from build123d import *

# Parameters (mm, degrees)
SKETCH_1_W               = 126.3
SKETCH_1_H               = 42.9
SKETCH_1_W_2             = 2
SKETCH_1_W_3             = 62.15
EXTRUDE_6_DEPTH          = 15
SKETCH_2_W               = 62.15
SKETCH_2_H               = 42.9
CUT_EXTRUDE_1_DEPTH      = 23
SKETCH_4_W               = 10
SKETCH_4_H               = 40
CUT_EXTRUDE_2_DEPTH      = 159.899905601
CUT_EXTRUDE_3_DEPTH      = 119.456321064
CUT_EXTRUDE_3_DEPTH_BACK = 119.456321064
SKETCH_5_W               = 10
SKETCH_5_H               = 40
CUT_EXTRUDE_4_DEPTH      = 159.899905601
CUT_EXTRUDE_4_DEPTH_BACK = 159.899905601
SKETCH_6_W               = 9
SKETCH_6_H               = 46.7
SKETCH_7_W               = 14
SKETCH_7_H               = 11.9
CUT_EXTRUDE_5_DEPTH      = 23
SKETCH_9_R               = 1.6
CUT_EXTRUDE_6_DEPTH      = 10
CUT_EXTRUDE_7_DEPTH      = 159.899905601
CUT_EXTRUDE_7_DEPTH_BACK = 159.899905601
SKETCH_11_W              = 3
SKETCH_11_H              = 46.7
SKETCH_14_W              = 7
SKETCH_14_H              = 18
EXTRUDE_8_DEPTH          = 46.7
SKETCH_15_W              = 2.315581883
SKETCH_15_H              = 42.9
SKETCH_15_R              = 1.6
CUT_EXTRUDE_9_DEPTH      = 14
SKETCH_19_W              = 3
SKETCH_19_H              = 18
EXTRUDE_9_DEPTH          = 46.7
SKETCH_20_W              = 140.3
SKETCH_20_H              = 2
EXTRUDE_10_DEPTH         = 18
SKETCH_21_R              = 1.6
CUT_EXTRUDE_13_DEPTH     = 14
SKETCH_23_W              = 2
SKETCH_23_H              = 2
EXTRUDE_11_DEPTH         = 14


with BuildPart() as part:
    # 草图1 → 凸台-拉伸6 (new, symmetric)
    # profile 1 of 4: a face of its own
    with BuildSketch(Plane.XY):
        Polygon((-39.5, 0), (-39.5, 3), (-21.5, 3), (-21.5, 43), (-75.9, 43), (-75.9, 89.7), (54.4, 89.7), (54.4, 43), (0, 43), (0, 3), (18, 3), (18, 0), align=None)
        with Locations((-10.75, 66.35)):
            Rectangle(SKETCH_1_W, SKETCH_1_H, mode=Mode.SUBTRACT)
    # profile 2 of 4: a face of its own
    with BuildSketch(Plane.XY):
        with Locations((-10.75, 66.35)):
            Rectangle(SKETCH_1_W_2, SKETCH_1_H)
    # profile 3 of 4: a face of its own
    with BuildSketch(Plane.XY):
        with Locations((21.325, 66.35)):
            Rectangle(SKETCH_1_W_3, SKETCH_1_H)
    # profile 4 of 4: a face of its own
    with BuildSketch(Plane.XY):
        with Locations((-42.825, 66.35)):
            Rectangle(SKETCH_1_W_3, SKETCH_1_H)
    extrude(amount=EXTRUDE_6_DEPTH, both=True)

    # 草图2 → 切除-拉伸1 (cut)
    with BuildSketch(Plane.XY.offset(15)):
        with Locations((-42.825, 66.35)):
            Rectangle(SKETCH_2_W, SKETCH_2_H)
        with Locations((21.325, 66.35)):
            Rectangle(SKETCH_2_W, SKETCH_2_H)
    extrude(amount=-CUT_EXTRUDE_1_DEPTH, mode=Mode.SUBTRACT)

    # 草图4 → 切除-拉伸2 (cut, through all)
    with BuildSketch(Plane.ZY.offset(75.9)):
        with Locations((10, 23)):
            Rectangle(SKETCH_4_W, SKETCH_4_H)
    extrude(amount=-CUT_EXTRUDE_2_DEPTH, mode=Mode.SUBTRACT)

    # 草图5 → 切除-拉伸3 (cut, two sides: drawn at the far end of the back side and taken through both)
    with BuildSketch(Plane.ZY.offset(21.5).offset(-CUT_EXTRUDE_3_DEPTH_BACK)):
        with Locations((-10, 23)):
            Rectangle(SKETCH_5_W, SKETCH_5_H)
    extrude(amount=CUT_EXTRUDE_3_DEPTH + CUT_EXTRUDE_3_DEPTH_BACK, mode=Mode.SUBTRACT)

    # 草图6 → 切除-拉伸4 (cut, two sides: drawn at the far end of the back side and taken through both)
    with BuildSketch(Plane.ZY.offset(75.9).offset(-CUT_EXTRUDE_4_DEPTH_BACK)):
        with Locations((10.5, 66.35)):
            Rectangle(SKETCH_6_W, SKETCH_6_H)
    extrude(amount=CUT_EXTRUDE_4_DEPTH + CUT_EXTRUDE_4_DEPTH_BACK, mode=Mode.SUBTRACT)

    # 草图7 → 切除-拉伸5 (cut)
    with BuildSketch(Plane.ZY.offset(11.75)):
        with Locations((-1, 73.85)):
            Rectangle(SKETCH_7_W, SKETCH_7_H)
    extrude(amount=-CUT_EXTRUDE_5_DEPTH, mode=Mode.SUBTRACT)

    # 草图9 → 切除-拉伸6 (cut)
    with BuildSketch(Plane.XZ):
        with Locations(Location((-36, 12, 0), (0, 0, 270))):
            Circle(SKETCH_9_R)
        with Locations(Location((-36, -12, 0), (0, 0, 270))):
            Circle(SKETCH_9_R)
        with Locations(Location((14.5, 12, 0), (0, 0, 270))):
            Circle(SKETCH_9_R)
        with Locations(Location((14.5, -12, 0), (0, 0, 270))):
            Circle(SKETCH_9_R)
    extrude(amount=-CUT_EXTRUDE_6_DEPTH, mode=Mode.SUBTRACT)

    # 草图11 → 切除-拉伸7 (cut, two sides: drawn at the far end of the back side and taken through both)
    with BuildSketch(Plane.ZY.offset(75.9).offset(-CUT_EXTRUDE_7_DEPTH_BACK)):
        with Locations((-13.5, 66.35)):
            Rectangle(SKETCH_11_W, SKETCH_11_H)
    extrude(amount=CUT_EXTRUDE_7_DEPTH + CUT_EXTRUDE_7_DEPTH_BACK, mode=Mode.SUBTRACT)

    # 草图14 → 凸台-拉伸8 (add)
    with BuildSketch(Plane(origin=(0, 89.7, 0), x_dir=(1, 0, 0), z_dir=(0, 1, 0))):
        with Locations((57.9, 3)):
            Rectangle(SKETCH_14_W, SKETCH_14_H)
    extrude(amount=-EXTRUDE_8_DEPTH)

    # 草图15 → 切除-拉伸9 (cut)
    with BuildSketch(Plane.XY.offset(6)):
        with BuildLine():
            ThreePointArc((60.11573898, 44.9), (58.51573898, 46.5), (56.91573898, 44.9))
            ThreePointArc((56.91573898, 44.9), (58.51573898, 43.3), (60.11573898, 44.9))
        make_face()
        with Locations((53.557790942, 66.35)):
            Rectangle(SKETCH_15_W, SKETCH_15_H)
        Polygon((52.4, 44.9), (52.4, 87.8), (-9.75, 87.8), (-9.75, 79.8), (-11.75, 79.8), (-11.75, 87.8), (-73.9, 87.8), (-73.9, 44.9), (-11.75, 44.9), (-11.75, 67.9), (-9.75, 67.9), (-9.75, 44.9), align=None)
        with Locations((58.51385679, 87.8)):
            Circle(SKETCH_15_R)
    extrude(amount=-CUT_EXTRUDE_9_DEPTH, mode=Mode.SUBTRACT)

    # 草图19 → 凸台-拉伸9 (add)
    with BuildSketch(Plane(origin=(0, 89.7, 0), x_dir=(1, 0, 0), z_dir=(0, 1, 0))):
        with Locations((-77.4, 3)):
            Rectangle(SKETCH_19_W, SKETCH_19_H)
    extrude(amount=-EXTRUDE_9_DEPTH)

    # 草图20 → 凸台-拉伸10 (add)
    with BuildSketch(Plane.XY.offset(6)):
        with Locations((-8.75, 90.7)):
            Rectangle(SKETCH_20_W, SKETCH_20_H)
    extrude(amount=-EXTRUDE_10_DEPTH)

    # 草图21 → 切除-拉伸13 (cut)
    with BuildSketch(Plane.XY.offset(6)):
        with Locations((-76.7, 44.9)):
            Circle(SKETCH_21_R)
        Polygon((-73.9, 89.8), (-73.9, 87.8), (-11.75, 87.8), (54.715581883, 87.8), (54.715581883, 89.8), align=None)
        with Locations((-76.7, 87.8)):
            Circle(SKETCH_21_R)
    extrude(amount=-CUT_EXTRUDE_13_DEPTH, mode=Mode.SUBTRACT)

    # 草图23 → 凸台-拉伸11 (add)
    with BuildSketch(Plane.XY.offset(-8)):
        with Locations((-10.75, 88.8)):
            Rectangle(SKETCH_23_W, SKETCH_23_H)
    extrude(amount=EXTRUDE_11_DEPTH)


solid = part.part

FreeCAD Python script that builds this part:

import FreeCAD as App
import Part
import Sketcher

V = App.Vector


def add_polygon(sketch, points):
    """Adds a closed chain of lines whose ends are joined by coincident constraints."""
    first, n = sketch.GeometryCount, len(points)
    for a, b in zip(points, points[1:] + points[:1]):
        sketch.addGeometry(Part.LineSegment(App.Vector(*a, 0), App.Vector(*b, 0)), False)
    for i in range(n):
        sketch.addConstraint(Sketcher.Constraint("Coincident", first + i, 2, first + (i + 1) % n, 1))

doc = App.newDocument("Part")
params = doc.addObject("Spreadsheet::Sheet", "Params")
for row, (alias, value) in enumerate([
    ("sketch1_width", "18 mm"),
    ("sketch1_height", "3 mm"),
    ("sketch1_height2", "40 mm"),
    ("sketch1_width2", "57.5 mm"),
    ("sketch1_width3", "54.4 mm"),
    ("pad1_length", "30 mm"),
    ("sketch2_height", "42.9 mm"),
    ("sketch2_width", "62.15 mm"),
    ("pocket1_length", "23 mm"),
    ("sketch3_width", "40 mm"),
    ("sketch3_height", "10 mm"),
    ("sketch4_width", "40 mm"),
    ("sketch4_height", "10 mm"),
    ("sketch5_height", "9 mm"),
    ("sketch5_width", "46.7 mm"),
    ("sketch6_height", "14 mm"),
    ("sketch6_width", "11.9 mm"),
    ("pocket5_length", "23 mm"),
    ("sketch7_diameter", "3.2 mm"),
    ("pocket6_length", "10 mm"),
    ("sketch8_height", "3 mm"),
    ("sketch8_width", "46.7 mm"),
    ("sketch9_width", "7 mm"),
    ("sketch9_height", "18 mm"),
    ("pad2_length", "46.7 mm"),
    ("sketch10_diameter", "3.2 mm"),
    ("sketch10_width", "2 mm"),
    ("sketch10_height", "8 mm"),
    ("sketch10_height2", "23 mm"),
    ("sketch10_height3", "42.9 mm"),
    ("pocket8_length", "14 mm"),
    ("sketch11_width", "3 mm"),
    ("sketch11_height", "18 mm"),
    ("pad3_length", "46.7 mm"),
    ("sketch12_height", "2 mm"),
    ("sketch12_width", "140.3 mm"),
    ("pad4_length", "18 mm"),
    ("sketch13_diameter", "3.2 mm"),
    ("sketch13_height", "2 mm"),
    ("pocket9_length", "14 mm"),
    ("sketch14_width", "2 mm"),
    ("pad5_length", "14 mm"),
], start=1):
    params.set(f"A{row}", alias)
    params.set(f"B{row}", "=" + value)
    params.setAlias(f"B{row}", alias)

body = doc.addObject("PartDesign::Body", "Body")

# Sketch on XY plane
sketch1 = body.newObject("Sketcher::SketchObject", "Sketch")
sketch1.AttachmentSupport = (doc.getObject("XY_Plane"), [""])
sketch1.MapMode = "FlatFace"
add_polygon(sketch1, [(-39.5, 3), (-39.5, 0), (18, 0), (18, 3), (0, 3), (0, 43), (54.4, 43), (54.4, 89.7), (-75.9, 89.7), (-75.9, 43), (-21.5, 43), (-21.5, 3)])  # lines 0-11
sketch1.addConstraint(Sketcher.Constraint("Vertical", 0))
sketch1.addConstraint(Sketcher.Constraint("Horizontal", 1))
sketch1.addConstraint(Sketcher.Constraint("Vertical", 2))
sketch1.addConstraint(Sketcher.Constraint("Horizontal", 3))
sketch1.addConstraint(Sketcher.Constraint("Vertical", 4))
sketch1.addConstraint(Sketcher.Constraint("Horizontal", 5))
sketch1.addConstraint(Sketcher.Constraint("Vertical", 6))
sketch1.addConstraint(Sketcher.Constraint("Horizontal", 7))
sketch1.addConstraint(Sketcher.Constraint("Vertical", 8))
sketch1.addConstraint(Sketcher.Constraint("Horizontal", 9))
sketch1.addConstraint(Sketcher.Constraint("Vertical", 10))
sketch1.addConstraint(Sketcher.Constraint("Horizontal", 11))
sketch1.addConstraint(Sketcher.Constraint("PointOnObject", 0, 2, -1))
sketch1.addConstraint(Sketcher.Constraint("PointOnObject", 3, 2, -2))
sketch1.addConstraint(Sketcher.Constraint("Horizontal", 5, 2, 8, 2))
sketch1.addConstraint(Sketcher.Constraint("Horizontal", 3, 2, 10, 2))
sketch1.addConstraint(Sketcher.Constraint("Equal", 5, 9))
sketch1.addConstraint(Sketcher.Constraint("Equal", 3, 11))
sketch1.addConstraint(Sketcher.Constraint("DistanceX", 3, 2, 3, 1, 18.0))
sketch1.addConstraint(Sketcher.Constraint("DistanceY", 0, 2, 0, 1, 3.0))
sketch1.addConstraint(Sketcher.Constraint("DistanceY", 4, 1, 4, 2, 40.0))
sketch1.addConstraint(Sketcher.Constraint("DistanceX", 1, 1, 1, 2, 57.5))
sketch1.addConstraint(Sketcher.Constraint("DistanceX", 5, 1, 5, 2, 54.4))
sketch1.addConstraint(Sketcher.Constraint("DistanceY", 6, 1, 6, 2, 46.7))
sketch1.setExpression("Constraints[30]", "Params.sketch1_width")
sketch1.setExpression("Constraints[31]", "Params.sketch1_height")
sketch1.setExpression("Constraints[32]", "Params.sketch1_height2")
sketch1.setExpression("Constraints[33]", "Params.sketch1_width2")
sketch1.setExpression("Constraints[34]", "Params.sketch1_width3")
pad1 = body.newObject("PartDesign::Pad", "Pad")
pad1.Profile = sketch1
pad1.setExpression("Length", "Params.pad1_length")
pad1.Midplane = True

# Sketch on XY plane
sketch2 = body.newObject("Sketcher::SketchObject", "Sketch001")
sketch2.AttachmentSupport = (doc.getObject("XY_Plane"), [""])
sketch2.MapMode = "FlatFace"
sketch2.AttachmentOffset = App.Placement(V(0, 0, 15), App.Rotation())
add_polygon(sketch2, [(-74, 88), (-74, 45), (-12, 45), (-12, 88)])  # lines 0-3
add_polygon(sketch2, [(-10, 88), (-10, 45), (52, 45), (52, 88)])  # lines 4-7
sketch2.addConstraint(Sketcher.Constraint("Vertical", 0))
sketch2.addConstraint(Sketcher.Constraint("Horizontal", 1))
sketch2.addConstraint(Sketcher.Constraint("Vertical", 2))
sketch2.addConstraint(Sketcher.Constraint("Horizontal", 3))
sketch2.addConstraint(Sketcher.Constraint("Vertical", 4))
sketch2.addConstraint(Sketcher.Constraint("Horizontal", 5))
sketch2.addConstraint(Sketcher.Constraint("Vertical", 6))
sketch2.addConstraint(Sketcher.Constraint("Horizontal", 7))
sketch2.addConstraint(Sketcher.Constraint("Horizontal", 1, 2, 4, 2))
sketch2.addConstraint(Sketcher.Constraint("Horizontal", 3, 2, 6, 2))
sketch2.addConstraint(Sketcher.Constraint("Equal", 3, 5))
sketch2.addConstraint(Sketcher.Constraint("DistanceY", 0, 2, 0, 1, 42.9))
sketch2.addConstraint(Sketcher.Constraint("DistanceX", 1, 2, 4, 2, 2.0))
sketch2.addConstraint(Sketcher.Constraint("DistanceX", 1, 1, 1, 2, 62.15))
sketch2.addConstraint(Sketcher.Constraint("DistanceX", 0, 2, -1, 1, 73.9))
sketch2.addConstraint(Sketcher.Constraint("DistanceY", -1, 1, 0, 2, 44.9))
sketch2.setExpression("Constraints[19]", "Params.sketch2_height")
sketch2.setExpression("Constraints[21]", "Params.sketch2_width")
pocket1 = body.newObject("PartDesign::Pocket", "Pocket")
pocket1.Profile = sketch2
pocket1.setExpression("Length", "Params.pocket1_length")

# Sketch on YZ plane
sketch3 = body.newObject("Sketcher::SketchObject", "Sketch002")
sketch3.AttachmentSupport = (doc.getObject("YZ_Plane"), [""])
sketch3.MapMode = "FlatFace"
sketch3.AttachmentOffset = App.Placement(V(0, 0, -75.9), App.Rotation())
add_polygon(sketch3, [(43, 5), (3, 5), (3, 15), (43, 15)])  # lines 0-3
sketch3.addConstraint(Sketcher.Constraint("Horizontal", 0))
sketch3.addConstraint(Sketcher.Constraint("Vertical", 1))
sketch3.addConstraint(Sketcher.Constraint("Horizontal", 2))
sketch3.addConstraint(Sketcher.Constraint("Vertical", 3))
sketch3.addConstraint(Sketcher.Constraint("DistanceX", 0, 2, 0, 1, 40.0))
sketch3.addConstraint(Sketcher.Constraint("DistanceY", 1, 1, 1, 2, 10.0))
sketch3.addConstraint(Sketcher.Constraint("DistanceX", -1, 1, 0, 2, 3.0))
sketch3.addConstraint(Sketcher.Constraint("DistanceY", -1, 1, 0, 2, 5.0))
sketch3.setExpression("Constraints[8]", "Params.sketch3_width")
sketch3.setExpression("Constraints[9]", "Params.sketch3_height")
pocket2 = body.newObject("PartDesign::Pocket", "Pocket001")
pocket2.Profile = sketch3
pocket2.Type = "ThroughAll"
pocket2.Reversed = True

# Sketch on YZ plane
sketch4 = body.newObject("Sketcher::SketchObject", "Sketch003")
sketch4.AttachmentSupport = (doc.getObject("YZ_Plane"), [""])
sketch4.MapMode = "FlatFace"
sketch4.AttachmentOffset = App.Placement(V(0, 0, -21.5), App.Rotation())
add_polygon(sketch4, [(43, -15), (3, -15), (3, -5), (43, -5)])  # lines 0-3
sketch4.addConstraint(Sketcher.Constraint("Horizontal", 0))
sketch4.addConstraint(Sketcher.Constraint("Vertical", 1))
sketch4.addConstraint(Sketcher.Constraint("Horizontal", 2))
sketch4.addConstraint(Sketcher.Constraint("Vertical", 3))
sketch4.addConstraint(Sketcher.Constraint("DistanceX", 0, 2, 0, 1, 40.0))
sketch4.addConstraint(Sketcher.Constraint("DistanceY", 1, 1, 1, 2, 10.0))
sketch4.addConstraint(Sketcher.Constraint("DistanceX", -1, 1, 0, 2, 3.0))
sketch4.addConstraint(Sketcher.Constraint("DistanceY", 0, 2, -1, 1, 15.0))
sketch4.setExpression("Constraints[8]", "Params.sketch4_width")
sketch4.setExpression("Constraints[9]", "Params.sketch4_height")
pocket3 = body.newObject("PartDesign::Pocket", "Pocket002")
pocket3.Profile = sketch4
pocket3.Type = "ThroughAll"
pocket3.Midplane = True

# Sketch on YZ plane
sketch5 = body.newObject("Sketcher::SketchObject", "Sketch004")
sketch5.AttachmentSupport = (doc.getObject("YZ_Plane"), [""])
sketch5.MapMode = "FlatFace"
sketch5.AttachmentOffset = App.Placement(V(0, 0, -75.9), App.Rotation())
add_polygon(sketch5, [(90, 6), (43, 6), (43, 15), (90, 15)])  # lines 0-3
sketch5.addConstraint(Sketcher.Constraint("Horizontal", 0))
sketch5.addConstraint(Sketcher.Constraint("Vertical", 1))
sketch5.addConstraint(Sketcher.Constraint("Horizontal", 2))
sketch5.addConstraint(Sketcher.Constraint("Vertical", 3))
sketch5.addConstraint(Sketcher.Constraint("DistanceY", 1, 1, 1, 2, 9.0))
sketch5.addConstraint(Sketcher.Constraint("DistanceX", 0, 2, 0, 1, 46.7))
sketch5.addConstraint(Sketcher.Constraint("DistanceX", -1, 1, 0, 2, 43.0))
sketch5.addConstraint(Sketcher.Constraint("DistanceY", -1, 1, 0, 2, 6.0))
sketch5.setExpression("Constraints[8]", "Params.sketch5_height")
sketch5.setExpression("Constraints[9]", "Params.sketch5_width")
pocket4 = body.newObject("PartDesign::Pocket", "Pocket003")
pocket4.Profile = sketch5
pocket4.Type = "ThroughAll"
pocket4.Midplane = True

# Sketch on YZ plane
sketch6 = body.newObject("Sketcher::SketchObject", "Sketch005")
sketch6.AttachmentSupport = (doc.getObject("YZ_Plane"), [""])
sketch6.MapMode = "FlatFace"
sketch6.AttachmentOffset = App.Placement(V(0, 0, -11.75), App.Rotation())
add_polygon(sketch6, [(80, -8), (68, -8), (68, 6), (80, 6)])  # lines 0-3
sketch6.addConstraint(Sketcher.Constraint("Horizontal", 0))
sketch6.addConstraint(Sketcher.Constraint("Vertical", 1))
sketch6.addConstraint(Sketcher.Constraint("Horizontal", 2))
sketch6.addConstraint(Sketcher.Constraint("Vertical", 3))
sketch6.addConstraint(Sketcher.Constraint("DistanceY", 1, 1, 1, 2, 14.0))
sketch6.addConstraint(Sketcher.Constraint("DistanceX", 0, 2, 0, 1, 11.9))
sketch6.addConstraint(Sketcher.Constraint("DistanceY", 0, 2, -1, 1, 8.0))
sketch6.addConstraint(Sketcher.Constraint("DistanceX", -1, 1, 0, 2, 67.9))
sketch6.setExpression("Constraints[8]", "Params.sketch6_height")
sketch6.setExpression("Constraints[9]", "Params.sketch6_width")
pocket5 = body.newObject("PartDesign::Pocket", "Pocket004")
pocket5.Profile = sketch6
pocket5.setExpression("Length", "Params.pocket5_length")
pocket5.Reversed = True

# Sketch on XZ plane
sketch7 = body.newObject("Sketcher::SketchObject", "Sketch006")
sketch7.AttachmentSupport = (doc.getObject("XZ_Plane"), [""])
sketch7.MapMode = "FlatFace"
sketch7.addGeometry(Part.Circle(V(-36, 12, 0), V(0, 0, 1), 1.6), False)
sketch7.addGeometry(Part.Circle(V(-36, -12, 0), V(0, 0, 1), 1.6), False)
sketch7.addGeometry(Part.Circle(V(14.5, 12, 0), V(0, 0, 1), 1.6), False)
sketch7.addGeometry(Part.Circle(V(14.5, -12, 0), V(0, 0, 1), 1.6), False)
sketch7.addConstraint(Sketcher.Constraint("Equal", 0, 1))
sketch7.addConstraint(Sketcher.Constraint("Equal", 1, 2))
sketch7.addConstraint(Sketcher.Constraint("Equal", 2, 3))
sketch7.addConstraint(Sketcher.Constraint("Symmetric", 0, 3, 1, 3, -1))
sketch7.addConstraint(Sketcher.Constraint("Symmetric", 2, 3, 3, 3, -1))
sketch7.addConstraint(Sketcher.Constraint("Horizontal", 0, 3, 2, 3))
sketch7.addConstraint(Sketcher.Constraint("Diameter", 0, 3.2))
sketch7.addConstraint(Sketcher.Constraint("DistanceX", 0, 3, -1, 1, 36.0))
sketch7.addConstraint(Sketcher.Constraint("DistanceY", -1, 1, 0, 3, 12.0))
sketch7.addConstraint(Sketcher.Constraint("DistanceX", -1, 1, 2, 3, 14.5))
sketch7.setExpression("Constraints[6]", "Params.sketch7_diameter")
pocket6 = body.newObject("PartDesign::Pocket", "Pocket005")
pocket6.Profile = sketch7
pocket6.setExpression("Length", "Params.pocket6_length")

# Sketch on YZ plane
sketch8 = body.newObject("Sketcher::SketchObject", "Sketch007")
sketch8.AttachmentSupport = (doc.getObject("YZ_Plane"), [""])
sketch8.MapMode = "FlatFace"
sketch8.AttachmentOffset = App.Placement(V(0, 0, -75.9), App.Rotation())
add_polygon(sketch8, [(89.7, -15), (43, -15), (43, -12), (89.7, -12)])  # lines 0-3
sketch8.addConstraint(Sketcher.Constraint("Horizontal", 0))
sketch8.addConstraint(Sketcher.Constraint("Vertical", 1))
sketch8.addConstraint(Sketcher.Constraint("Horizontal", 2))
sketch8.addConstraint(Sketcher.Constraint("Vertical", 3))
sketch8.addConstraint(Sketcher.Constraint("DistanceY", 1, 1, 1, 2, 3.0))
sketch8.addConstraint(Sketcher.Constraint("DistanceX", 0, 2, 0, 1, 46.7))
sketch8.addConstraint(Sketcher.Constraint("DistanceX", -1, 1, 0, 2, 43.0))
sketch8.addConstraint(Sketcher.Constraint("DistanceY", 0, 2, -1, 1, 15.0))
sketch8.setExpression("Constraints[8]", "Params.sketch8_height")
sketch8.setExpression("Constraints[9]", "Params.sketch8_width")
pocket7 = body.newObject("PartDesign::Pocket", "Pocket006")
pocket7.Profile = sketch8
pocket7.Type = "ThroughAll"
pocket7.Midplane = True

# Sketch on XZ plane
sketch9 = body.newObject("Sketcher::SketchObject", "Sketch008")
sketch9.AttachmentSupport = (doc.getObject("XZ_Plane"), [""])
sketch9.MapMode = "FlatFace"
sketch9.AttachmentOffset = App.Placement(V(0, 0, -89.7), App.Rotation())
add_polygon(sketch9, [(54, -12), (54, 6), (61, 6), (61, -12)])  # lines 0-3
sketch9.addConstraint(Sketcher.Constraint("Vertical", 0))
sketch9.addConstraint(Sketcher.Constraint("Horizontal", 1))
sketch9.addConstraint(Sketcher.Constraint("Vertical", 2))
sketch9.addConstraint(Sketcher.Constraint("Horizontal", 3))
sketch9.addConstraint(Sketcher.Constraint("DistanceX", 1, 1, 1, 2, 7.0))
sketch9.addConstraint(Sketcher.Constraint("DistanceY", 0, 1, 0, 2, 18.0))
sketch9.addConstraint(Sketcher.Constraint("DistanceY", -1, 1, 0, 2, 6.0))
sketch9.addConstraint(Sketcher.Constraint("DistanceX", -1, 1, 0, 2, 54.4))
sketch9.setExpression("Constraints[8]", "Params.sketch9_width")
sketch9.setExpression("Constraints[9]", "Params.sketch9_height")
pad2 = body.newObject("PartDesign::Pad", "Pad001")
pad2.Profile = sketch9
pad2.setExpression("Length", "Params.pad2_length")

# Sketch on XY plane
sketch10 = body.newObject("Sketcher::SketchObject", "Sketch009")
sketch10.AttachmentSupport = (doc.getObject("XY_Plane"), [""])
sketch10.MapMode = "FlatFace"
sketch10.AttachmentOffset = App.Placement(V(0, 0, 6), App.Rotation())
sketch10.addGeometry(Part.Circle(V(58.5, 44.9, 0), V(0, 0, 1), 1.6), False)  # 0
add_polygon(sketch10, [(54.7, 44.9), (54.7, 87.8), (-9.8, 87.8), (-9.8, 79.8), (-11.8, 79.8), (-11.8, 87.8), (-73.9, 87.8), (-73.9, 44.9), (-11.8, 44.9), (-11.8, 67.9), (-9.8, 67.9), (-9.8, 44.9)])  # lines 1-12
sketch10.addGeometry(Part.Circle(V(58.5, 87.8, 0), V(0, 0, 1), 1.6), False)  # 13
sketch10.addConstraint(Sketcher.Constraint("Vertical", 1))
sketch10.addConstraint(Sketcher.Constraint("Horizontal", 2))
sketch10.addConstraint(Sketcher.Constraint("Vertical", 3))
sketch10.addConstraint(Sketcher.Constraint("Horizontal", 4))
sketch10.addConstraint(Sketcher.Constraint("Vertical", 5))
sketch10.addConstraint(Sketcher.Constraint("Horizontal", 6))
sketch10.addConstraint(Sketcher.Constraint("Vertical", 7))
sketch10.addConstraint(Sketcher.Constraint("Horizontal", 8))
sketch10.addConstraint(Sketcher.Constraint("Vertical", 9))
sketch10.addConstraint(Sketcher.Constraint("Horizontal", 10))
sketch10.addConstraint(Sketcher.Constraint("Vertical", 11))
sketch10.addConstraint(Sketcher.Constraint("Horizontal", 12))
sketch10.addConstraint(Sketcher.Constraint("Equal", 0, 13))
sketch10.addConstraint(Sketcher.Constraint("Horizontal", 13, 3, 1, 2))
sketch10.addConstraint(Sketcher.Constraint("Horizontal", 2, 2, 5, 2))
sketch10.addConstraint(Sketcher.Constraint("Horizontal", 0, 3, 7, 2))
sketch10.addConstraint(Sketcher.Constraint("Horizontal", 8, 2, 11, 2))
sketch10.addConstraint(Sketcher.Constraint("Vertical", 5, 2, 8, 2))
sketch10.addConstraint(Sketcher.Constraint("Vertical", 3, 2, 10, 2))
sketch10.addConstraint(Sketcher.Constraint("Diameter", 0, 3.2))
sketch10.addConstraint(Sketcher.Constraint("DistanceX", 4, 2, 4, 1, 2.0))
sketch10.addConstraint(Sketcher.Constraint("DistanceY", 3, 2, 3, 1, 8.0))
sketch10.addConstraint(Sketcher.Constraint("DistanceY", 9, 1, 9, 2, 23.0))
sketch10.addConstraint(Sketcher.Constraint("DistanceY", 1, 1, 1, 2, 42.9))
sketch10.addConstraint(Sketcher.Constraint("DistanceX", 6, 2, 6, 1, 62.15))
sketch10.addConstraint(Sketcher.Constraint("DistanceY", -1, 1, 0, 3, 44.9))
sketch10.addConstraint(Sketcher.Constraint("DistanceX", 6, 2, -1, 1, 73.9))
sketch10.addConstraint(Sketcher.Constraint("DistanceX", 2, 2, 2, 1, 64.465582))
sketch10.addConstraint(Sketcher.Constraint("DistanceX", -1, 1, 0, 3, 58.515739))
sketch10.addConstraint(Sketcher.Constraint("DistanceX", -1, 1, 13, 3, 58.513857))
sketch10.setExpression("Constraints[31]", "Params.sketch10_diameter")
sketch10.setExpression("Constraints[32]", "Params.sketch10_width")
sketch10.setExpression("Constraints[33]", "Params.sketch10_height")
sketch10.setExpression("Constraints[34]", "Params.sketch10_height2")
sketch10.setExpression("Constraints[35]", "Params.sketch10_height3")
pocket8 = body.newObject("PartDesign::Pocket", "Pocket007")
pocket8.Profile = sketch10
pocket8.setExpression("Length", "Params.pocket8_length")

# Sketch on XZ plane
sketch11 = body.newObject("Sketcher::SketchObject", "Sketch010")
sketch11.AttachmentSupport = (doc.getObject("XZ_Plane"), [""])
sketch11.MapMode = "FlatFace"
sketch11.AttachmentOffset = App.Placement(V(0, 0, -89.7), App.Rotation())
add_polygon(sketch11, [(-78.9, -12), (-78.9, 6), (-75.9, 6), (-75.9, -12)])  # lines 0-3
sketch11.addConstraint(Sketcher.Constraint("Vertical", 0))
sketch11.addConstraint(Sketcher.Constraint("Horizontal", 1))
sketch11.addConstraint(Sketcher.Constraint("Vertical", 2))
sketch11.addConstraint(Sketcher.Constraint("Horizontal", 3))
sketch11.addConstraint(Sketcher.Constraint("DistanceX", 1, 1, 1, 2, 3.0))
sketch11.addConstraint(Sketcher.Constraint("DistanceY", 0, 1, 0, 2, 18.0))
sketch11.addConstraint(Sketcher.Constraint("DistanceY", -1, 1, 0, 2, 6.0))
sketch11.addConstraint(Sketcher.Constraint("DistanceX", 0, 2, -1, 1, 78.9))
sketch11.setExpression("Constraints[8]", "Params.sketch11_width")
sketch11.setExpression("Constraints[9]", "Params.sketch11_height")
pad3 = body.newObject("PartDesign::Pad", "Pad002")
pad3.Profile = sketch11
pad3.setExpression("Length", "Params.pad3_length")

# Sketch on XY plane
sketch12 = body.newObject("Sketcher::SketchObject", "Sketch011")
sketch12.AttachmentSupport = (doc.getObject("XY_Plane"), [""])
sketch12.MapMode = "FlatFace"
sketch12.AttachmentOffset = App.Placement(V(0, 0, 6), App.Rotation())
add_polygon(sketch12, [(-78.9, 91.7), (-78.9, 89.7), (61.4, 89.7), (61.4, 91.7)])  # lines 0-3
sketch12.addConstraint(Sketcher.Constraint("Vertical", 0))
sketch12.addConstraint(Sketcher.Constraint("Horizontal", 1))
sketch12.addConstraint(Sketcher.Constraint("Vertical", 2))
sketch12.addConstraint(Sketcher.Constraint("Horizontal", 3))
sketch12.addConstraint(Sketcher.Constraint("DistanceY", 0, 2, 0, 1, 2.0))
sketch12.addConstraint(Sketcher.Constraint("DistanceX", 1, 1, 1, 2, 140.3))
sketch12.addConstraint(Sketcher.Constraint("DistanceX", 0, 2, -1, 1, 78.9))
sketch12.addConstraint(Sketcher.Constraint("DistanceY", -1, 1, 0, 2, 89.7))
sketch12.setExpression("Constraints[8]", "Params.sketch12_height")
sketch12.setExpression("Constraints[9]", "Params.sketch12_width")
pad4 = body.newObject("PartDesign::Pad", "Pad003")
pad4.Profile = sketch12
pad4.setExpression("Length", "Params.pad4_length")
pad4.Reversed = True

# Sketch on XY plane
sketch13 = body.newObject("Sketcher::SketchObject", "Sketch012")
sketch13.AttachmentSupport = (doc.getObject("XY_Plane"), [""])
sketch13.MapMode = "FlatFace"
sketch13.AttachmentOffset = App.Placement(V(0, 0, 6), App.Rotation())
sketch13.addGeometry(Part.Circle(V(-76.7, 44.9, 0), V(0, 0, 1), 1.6), False)  # 0
add_polygon(sketch13, [(-73.9, 89.8), (-73.9, 87.8), (54.7, 87.8), (54.7, 89.8)])  # lines 1-4
sketch13.addGeometry(Part.Circle(V(-76.7, 87.8, 0), V(0, 0, 1), 1.6), False)  # 5
sketch13.addConstraint(Sketcher.Constraint("Vertical", 1))
sketch13.addConstraint(Sketcher.Constraint("Horizontal", 2))
sketch13.addConstraint(Sketcher.Constraint("Vertical", 3))
sketch13.addConstraint(Sketcher.Constraint("Horizontal", 4))
sketch13.addConstraint(Sketcher.Constraint("Equal", 0, 5))
sketch13.addConstraint(Sketcher.Constraint("Horizontal", 5, 3, 1, 2))
sketch13.addConstraint(Sketcher.Constraint("Vertical", 0, 3, 5, 3))
sketch13.addConstraint(Sketcher.Constraint("Diameter", 0, 3.2))
sketch13.addConstraint(Sketcher.Constraint("DistanceY", 1, 2, 1, 1, 2.0))
sketch13.addConstraint(Sketcher.Constraint("DistanceX", 0, 3, -1, 1, 76.7))
sketch13.addConstraint(Sketcher.Constraint("DistanceY", -1, 1, 0, 3, 44.9))
sketch13.addConstraint(Sketcher.Constraint("DistanceY", -1, 1, 5, 3, 87.8))
sketch13.addConstraint(Sketcher.Constraint("DistanceX", 1, 2, -1, 1, 73.9))
sketch13.addConstraint(Sketcher.Constraint("DistanceX", 2, 1, 2, 2, 128.615582))
sketch13.setExpression("Constraints[11]", "Params.sketch13_diameter")
sketch13.setExpression("Constraints[12]", "Params.sketch13_height")
pocket9 = body.newObject("PartDesign::Pocket", "Pocket008")
pocket9.Profile = sketch13
pocket9.setExpression("Length", "Params.pocket9_length")

# Sketch on XY plane
sketch14 = body.newObject("Sketcher::SketchObject", "Sketch013")
sketch14.AttachmentSupport = (doc.getObject("XY_Plane"), [""])
sketch14.MapMode = "FlatFace"
sketch14.AttachmentOffset = App.Placement(V(0, 0, -8), App.Rotation())
add_polygon(sketch14, [(-11.8, 89.8), (-11.8, 87.8), (-9.8, 87.8), (-9.8, 89.8)])  # lines 0-3
sketch14.addConstraint(Sketcher.Constraint("Vertical", 0))
sketch14.addConstraint(Sketcher.Constraint("Horizontal", 1))
sketch14.addConstraint(Sketcher.Constraint("Vertical", 2))
sketch14.addConstraint(Sketcher.Constraint("Horizontal", 3))
sketch14.addConstraint(Sketcher.Constraint("Equal", 3, 0))
sketch14.addConstraint(Sketcher.Constraint("DistanceX", 1, 1, 1, 2, 2.0))
sketch14.addConstraint(Sketcher.Constraint("DistanceY", -1, 1, 0, 2, 87.8))
sketch14.addConstraint(Sketcher.Constraint("DistanceX", 0, 2, -1, 1, 11.75))
sketch14.setExpression("Constraints[9]", "Params.sketch14_width")
pad5 = body.newObject("PartDesign::Pad", "Pad004")
pad5.Profile = sketch14
pad5.setExpression("Length", "Params.pad5_length")

doc.recompute()
